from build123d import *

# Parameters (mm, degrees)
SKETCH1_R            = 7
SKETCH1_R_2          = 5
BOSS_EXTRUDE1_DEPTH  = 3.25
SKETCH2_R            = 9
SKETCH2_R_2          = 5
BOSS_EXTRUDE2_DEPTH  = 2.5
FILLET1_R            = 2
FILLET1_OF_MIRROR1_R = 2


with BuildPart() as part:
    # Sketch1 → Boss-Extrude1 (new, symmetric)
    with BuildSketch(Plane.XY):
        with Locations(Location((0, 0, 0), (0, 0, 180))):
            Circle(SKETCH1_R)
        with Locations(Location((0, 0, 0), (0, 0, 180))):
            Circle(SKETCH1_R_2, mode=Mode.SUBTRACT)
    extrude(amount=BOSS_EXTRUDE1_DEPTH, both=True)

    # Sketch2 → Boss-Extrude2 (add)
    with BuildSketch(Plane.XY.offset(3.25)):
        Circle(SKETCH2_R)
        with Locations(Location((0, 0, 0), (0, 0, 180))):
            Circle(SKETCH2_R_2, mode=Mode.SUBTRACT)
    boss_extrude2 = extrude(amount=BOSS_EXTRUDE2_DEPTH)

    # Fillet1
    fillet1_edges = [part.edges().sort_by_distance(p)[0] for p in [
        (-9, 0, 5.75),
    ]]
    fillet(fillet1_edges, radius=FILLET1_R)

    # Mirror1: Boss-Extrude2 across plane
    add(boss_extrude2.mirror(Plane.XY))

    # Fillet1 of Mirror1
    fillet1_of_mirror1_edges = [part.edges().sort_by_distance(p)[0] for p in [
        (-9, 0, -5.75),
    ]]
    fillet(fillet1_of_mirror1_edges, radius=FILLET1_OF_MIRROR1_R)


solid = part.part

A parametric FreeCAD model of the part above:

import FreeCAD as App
import Part
import Sketcher

V = App.Vector
Q = App.Units.Quantity


def edges_at(feature, points):
    """Names of the edges that pass closest to the given points."""
    edges = feature.Shape.Edges
    near = lambda p: min(range(len(edges)), key=lambda i: edges[i].distToShape(Part.Vertex(*p))[0])
    return sorted({f"Edge{near(p) + 1}" for p in points})

doc = App.newDocument("Part")
params = doc.addObject("Spreadsheet::Sheet", "Params")
for row, (alias, value) in enumerate([
    ("sketch1_diameter", "14 mm"),
    ("sketch1_diameter2", "10 mm"),
    ("pad1_length", "6.5 mm"),
    ("sketch2_diameter", "18 mm"),
    ("sketch2_diameter2", "10 mm"),
    ("pad2_length", "2.5 mm"),
    ("fillet_radius", "2 mm"),
    ("fillet2_radius", "2 mm"),
], start=1):
    params.set(f"A{row}", alias)
    params.set(f"B{row}", "=" + value)
    params.setAlias(f"B{row}", alias)

body = doc.addObject("PartDesign::Body", "Body")

# Sketch on XY plane
sketch1 = body.newObject("Sketcher::SketchObject", "Sketch")
sketch1.AttachmentSupport = (doc.getObject("XY_Plane"), [""])
sketch1.MapMode = "FlatFace"
sketch1.addGeometry([
    Part.Circle(V(0, 0, 0), V(0, 0, 1), 7),
    Part.Circle(V(0, 0, 0), V(0, 0, 1), 5),
], False)
sketch1.addConstraint([
    Sketcher.Constraint("Coincident", 0, 3, -1, 1),
    Sketcher.Constraint("Coincident", 1, 3, -1, 1),
    Sketcher.Constraint("Diameter", 0, Q("14 mm")),
    Sketcher.Constraint("Diameter", 1, Q("10 mm")),
])
sketch1.setExpression("Constraints[2]", "Params.sketch1_diameter")
sketch1.setExpression("Constraints[3]", "Params.sketch1_diameter2")
pad1 = body.newObject("PartDesign::Pad", "Pad")
pad1.Profile = sketch1
pad1.setExpression("Length", "Params.pad1_length")
pad1.Midplane = True

# Sketch on XY plane
sketch2 = body.newObject("Sketcher::SketchObject", "Sketch001")
sketch2.AttachmentSupport = (doc.getObject("XY_Plane"), [""])
sketch2.MapMode = "FlatFace"
sketch2.AttachmentOffset = App.Placement(V(0, 0, 3.25), App.Rotation())
sketch2.addGeometry([
    Part.Circle(V(0, 0, 0), V(0, 0, 1), 9),
    Part.Circle(V(0, 0, 0), V(0, 0, 1), 5),
], False)
sketch2.addConstraint([
    Sketcher.Constraint("Coincident", 0, 3, -1, 1),
    Sketcher.Constraint("Coincident", 1, 3, -1, 1),
    Sketcher.Constraint("Diameter", 0, Q("18 mm")),
    Sketcher.Constraint("Diameter", 1, Q("10 mm")),
])
sketch2.setExpression("Constraints[2]", "Params.sketch2_diameter")
sketch2.setExpression("Constraints[3]", "Params.sketch2_diameter2")
pad2 = body.newObject("PartDesign::Pad", "Pad001")
pad2.Profile = sketch2
pad2.setExpression("Length", "Params.pad2_length")
doc.recompute()

fillet = body.newObject("PartDesign::Fillet", "Fillet")
fillet.Base = (pad2, edges_at(pad2, [(-9, 0, 5.75)]))
fillet.setExpression("Radius", "Params.fillet_radius")
doc.recompute()

mirrored = body.newObject("PartDesign::Mirrored", "Mirrored")
mirrored.Originals = [pad2]
mirrored.MirrorPlane = (doc.getObject("XY_Plane"), [""])
body.Tip = mirrored
doc.recompute()

fillet2 = body.newObject("PartDesign::Fillet", "Fillet001")
fillet2.Base = (mirrored, edges_at(mirrored, [(-9, 0, -5.75)]))
fillet2.setExpression("Radius", "Params.fillet2_radius")

doc.recompute()
